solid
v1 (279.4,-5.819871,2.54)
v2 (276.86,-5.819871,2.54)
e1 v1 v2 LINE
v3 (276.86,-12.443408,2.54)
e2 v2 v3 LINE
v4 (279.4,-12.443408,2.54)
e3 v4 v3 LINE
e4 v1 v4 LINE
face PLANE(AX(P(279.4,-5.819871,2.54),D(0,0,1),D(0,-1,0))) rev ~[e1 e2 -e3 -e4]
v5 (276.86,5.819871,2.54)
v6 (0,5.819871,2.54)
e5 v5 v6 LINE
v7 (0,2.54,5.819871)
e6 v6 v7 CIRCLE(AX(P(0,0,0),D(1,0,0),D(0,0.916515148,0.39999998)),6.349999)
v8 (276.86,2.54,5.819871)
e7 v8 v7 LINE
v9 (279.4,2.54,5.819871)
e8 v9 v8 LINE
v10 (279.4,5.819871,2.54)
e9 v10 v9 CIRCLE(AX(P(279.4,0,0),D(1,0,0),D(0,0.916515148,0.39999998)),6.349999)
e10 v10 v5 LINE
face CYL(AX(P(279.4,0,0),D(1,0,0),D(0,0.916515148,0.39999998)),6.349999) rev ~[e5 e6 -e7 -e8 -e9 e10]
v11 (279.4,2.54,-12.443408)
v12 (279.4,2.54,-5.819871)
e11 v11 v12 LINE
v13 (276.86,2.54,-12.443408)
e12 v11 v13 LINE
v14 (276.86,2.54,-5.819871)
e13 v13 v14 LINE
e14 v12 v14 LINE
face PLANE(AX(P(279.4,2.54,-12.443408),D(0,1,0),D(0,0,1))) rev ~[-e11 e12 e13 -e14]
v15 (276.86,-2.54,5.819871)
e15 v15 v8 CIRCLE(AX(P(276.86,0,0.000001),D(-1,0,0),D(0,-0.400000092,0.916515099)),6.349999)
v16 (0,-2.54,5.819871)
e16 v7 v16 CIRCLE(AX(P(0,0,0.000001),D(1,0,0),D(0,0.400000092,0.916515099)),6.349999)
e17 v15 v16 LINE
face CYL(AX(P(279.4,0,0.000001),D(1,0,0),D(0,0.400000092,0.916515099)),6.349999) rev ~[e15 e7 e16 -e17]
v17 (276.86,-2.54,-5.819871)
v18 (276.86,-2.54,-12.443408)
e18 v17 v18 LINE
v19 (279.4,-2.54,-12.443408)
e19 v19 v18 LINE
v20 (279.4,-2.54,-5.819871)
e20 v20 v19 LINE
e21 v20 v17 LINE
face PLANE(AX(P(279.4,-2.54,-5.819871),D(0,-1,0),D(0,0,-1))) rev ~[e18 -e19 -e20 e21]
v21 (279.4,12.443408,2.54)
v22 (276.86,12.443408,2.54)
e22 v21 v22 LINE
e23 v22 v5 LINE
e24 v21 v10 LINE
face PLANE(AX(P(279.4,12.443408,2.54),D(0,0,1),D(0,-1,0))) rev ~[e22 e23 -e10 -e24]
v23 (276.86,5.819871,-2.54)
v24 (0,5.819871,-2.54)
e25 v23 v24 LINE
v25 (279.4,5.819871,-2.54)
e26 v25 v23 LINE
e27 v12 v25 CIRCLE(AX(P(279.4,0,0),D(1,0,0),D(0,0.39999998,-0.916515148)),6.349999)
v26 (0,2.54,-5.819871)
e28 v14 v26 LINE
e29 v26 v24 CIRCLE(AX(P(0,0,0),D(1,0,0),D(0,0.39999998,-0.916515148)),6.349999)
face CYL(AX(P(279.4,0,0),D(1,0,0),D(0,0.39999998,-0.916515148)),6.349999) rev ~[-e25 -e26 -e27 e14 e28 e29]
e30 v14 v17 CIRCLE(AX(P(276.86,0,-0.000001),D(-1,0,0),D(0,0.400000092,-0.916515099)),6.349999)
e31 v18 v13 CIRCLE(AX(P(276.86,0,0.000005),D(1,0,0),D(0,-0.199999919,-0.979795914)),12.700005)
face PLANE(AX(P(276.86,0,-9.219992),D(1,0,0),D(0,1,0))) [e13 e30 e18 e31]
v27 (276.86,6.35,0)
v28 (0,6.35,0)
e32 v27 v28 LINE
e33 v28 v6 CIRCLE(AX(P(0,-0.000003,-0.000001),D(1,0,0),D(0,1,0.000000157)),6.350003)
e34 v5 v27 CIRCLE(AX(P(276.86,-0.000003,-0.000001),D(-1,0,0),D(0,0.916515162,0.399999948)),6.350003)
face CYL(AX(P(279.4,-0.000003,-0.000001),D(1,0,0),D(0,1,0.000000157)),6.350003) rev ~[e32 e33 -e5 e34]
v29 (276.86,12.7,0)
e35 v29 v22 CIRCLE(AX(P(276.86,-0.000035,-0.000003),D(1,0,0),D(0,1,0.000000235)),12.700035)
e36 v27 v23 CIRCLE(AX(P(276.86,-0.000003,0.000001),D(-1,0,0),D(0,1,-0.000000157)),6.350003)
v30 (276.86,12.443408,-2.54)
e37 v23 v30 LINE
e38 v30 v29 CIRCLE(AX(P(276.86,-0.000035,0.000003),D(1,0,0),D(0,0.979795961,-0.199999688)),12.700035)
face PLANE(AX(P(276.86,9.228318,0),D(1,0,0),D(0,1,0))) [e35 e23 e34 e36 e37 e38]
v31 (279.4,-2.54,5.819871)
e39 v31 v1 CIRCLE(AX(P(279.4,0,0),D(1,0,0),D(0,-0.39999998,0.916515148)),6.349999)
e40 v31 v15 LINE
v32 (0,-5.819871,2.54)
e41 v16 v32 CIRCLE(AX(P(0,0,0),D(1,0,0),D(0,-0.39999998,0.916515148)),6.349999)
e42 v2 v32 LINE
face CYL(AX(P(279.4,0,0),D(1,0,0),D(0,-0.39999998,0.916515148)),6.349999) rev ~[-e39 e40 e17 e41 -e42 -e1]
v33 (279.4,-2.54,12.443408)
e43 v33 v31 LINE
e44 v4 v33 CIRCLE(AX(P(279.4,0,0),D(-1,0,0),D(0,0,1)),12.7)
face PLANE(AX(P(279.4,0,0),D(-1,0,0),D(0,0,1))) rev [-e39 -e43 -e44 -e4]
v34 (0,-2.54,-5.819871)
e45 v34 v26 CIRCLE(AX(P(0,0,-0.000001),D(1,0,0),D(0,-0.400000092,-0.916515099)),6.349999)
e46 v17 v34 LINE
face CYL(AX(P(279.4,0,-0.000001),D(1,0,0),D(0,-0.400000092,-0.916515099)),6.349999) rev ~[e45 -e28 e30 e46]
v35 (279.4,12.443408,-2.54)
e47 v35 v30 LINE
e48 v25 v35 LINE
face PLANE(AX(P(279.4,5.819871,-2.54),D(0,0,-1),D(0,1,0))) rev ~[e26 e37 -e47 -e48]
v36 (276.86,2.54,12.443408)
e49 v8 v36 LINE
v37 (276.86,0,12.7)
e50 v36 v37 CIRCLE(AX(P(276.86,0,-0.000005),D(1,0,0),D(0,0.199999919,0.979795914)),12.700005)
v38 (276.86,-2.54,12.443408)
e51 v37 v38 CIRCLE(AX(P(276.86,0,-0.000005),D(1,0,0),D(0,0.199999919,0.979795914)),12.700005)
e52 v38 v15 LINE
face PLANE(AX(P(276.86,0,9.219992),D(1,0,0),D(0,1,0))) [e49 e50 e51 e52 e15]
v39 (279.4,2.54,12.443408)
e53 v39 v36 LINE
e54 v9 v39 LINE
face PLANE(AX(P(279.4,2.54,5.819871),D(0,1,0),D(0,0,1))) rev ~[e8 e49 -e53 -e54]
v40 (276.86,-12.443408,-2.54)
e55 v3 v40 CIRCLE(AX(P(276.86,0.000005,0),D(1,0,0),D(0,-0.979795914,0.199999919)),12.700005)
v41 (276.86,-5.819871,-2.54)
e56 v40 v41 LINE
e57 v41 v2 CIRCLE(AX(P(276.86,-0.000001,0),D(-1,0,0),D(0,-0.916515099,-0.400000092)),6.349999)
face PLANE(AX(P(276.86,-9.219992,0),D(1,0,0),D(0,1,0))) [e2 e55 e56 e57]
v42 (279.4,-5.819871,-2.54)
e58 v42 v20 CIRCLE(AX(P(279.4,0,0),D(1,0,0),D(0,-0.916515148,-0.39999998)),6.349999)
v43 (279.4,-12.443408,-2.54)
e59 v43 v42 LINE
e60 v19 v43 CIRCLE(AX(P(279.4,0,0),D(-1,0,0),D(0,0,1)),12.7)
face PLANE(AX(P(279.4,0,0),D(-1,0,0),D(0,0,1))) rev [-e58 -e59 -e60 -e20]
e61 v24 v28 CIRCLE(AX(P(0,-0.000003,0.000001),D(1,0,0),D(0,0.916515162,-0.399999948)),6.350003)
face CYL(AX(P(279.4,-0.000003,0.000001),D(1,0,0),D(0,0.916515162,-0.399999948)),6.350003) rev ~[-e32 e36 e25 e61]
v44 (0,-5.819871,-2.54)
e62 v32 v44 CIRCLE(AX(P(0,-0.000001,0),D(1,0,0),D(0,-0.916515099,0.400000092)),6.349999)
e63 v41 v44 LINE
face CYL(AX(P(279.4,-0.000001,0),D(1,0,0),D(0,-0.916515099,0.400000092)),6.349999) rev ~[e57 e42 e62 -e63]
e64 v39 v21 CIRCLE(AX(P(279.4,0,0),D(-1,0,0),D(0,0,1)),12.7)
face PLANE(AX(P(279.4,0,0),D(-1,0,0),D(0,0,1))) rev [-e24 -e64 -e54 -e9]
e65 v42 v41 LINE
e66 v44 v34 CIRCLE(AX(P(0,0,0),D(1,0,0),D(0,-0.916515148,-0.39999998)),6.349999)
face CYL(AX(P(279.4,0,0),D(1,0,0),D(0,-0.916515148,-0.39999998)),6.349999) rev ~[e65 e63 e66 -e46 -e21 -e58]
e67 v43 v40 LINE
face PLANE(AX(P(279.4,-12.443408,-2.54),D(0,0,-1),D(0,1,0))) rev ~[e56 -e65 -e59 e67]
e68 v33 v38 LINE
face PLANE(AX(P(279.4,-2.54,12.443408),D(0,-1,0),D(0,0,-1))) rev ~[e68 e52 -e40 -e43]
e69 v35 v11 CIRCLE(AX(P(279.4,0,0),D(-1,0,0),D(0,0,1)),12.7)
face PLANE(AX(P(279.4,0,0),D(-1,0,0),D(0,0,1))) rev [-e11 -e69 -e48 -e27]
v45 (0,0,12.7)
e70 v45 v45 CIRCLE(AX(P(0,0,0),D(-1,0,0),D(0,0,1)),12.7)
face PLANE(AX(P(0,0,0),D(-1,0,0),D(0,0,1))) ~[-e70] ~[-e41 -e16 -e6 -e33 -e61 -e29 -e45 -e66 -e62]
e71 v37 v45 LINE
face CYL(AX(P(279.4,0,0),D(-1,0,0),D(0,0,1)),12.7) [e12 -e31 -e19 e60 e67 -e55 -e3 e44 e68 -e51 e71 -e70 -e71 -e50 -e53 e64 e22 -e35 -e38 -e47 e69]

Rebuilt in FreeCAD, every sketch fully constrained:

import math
import FreeCAD as App
import Part
import Sketcher
from FreeCAD import Vector
Q = App.Units.Quantity


def add_polygon(sketch, points):
    """Adds a closed chain of lines whose ends are joined by coincident constraints."""
    first, n = sketch.GeometryCount, len(points)
    for a, b in zip(points, points[1:] + points[:1]):
        sketch.addGeometry(Part.LineSegment(App.Vector(*a, 0), App.Vector(*b, 0)), False)
    for i in range(n):
        sketch.addConstraint(Sketcher.Constraint("Coincident", first + i, 2, first + (i + 1) % n, 1))

doc = App.newDocument("Part")
body = doc.addObject("PartDesign::Body", "Body")

# Sketch on XZ plane
sketch1 = body.newObject("Sketcher::SketchObject", "Sketch")
sketch1.AttachmentSupport = (doc.getObject("XZ_Plane"), [""])
sketch1.MapMode = "FlatFace"
add_polygon(sketch1, [(0, 12.7), (0, 0), (279.4, 0), (279.4, 12.7)])  # lines 0-3
sketch1.addConstraint(Sketcher.Constraint("Vertical", 0))
sketch1.addConstraint(Sketcher.Constraint("Horizontal", 1))
sketch1.addConstraint(Sketcher.Constraint("Vertical", 2))
sketch1.addConstraint(Sketcher.Constraint("Horizontal", 3))
sketch1.addConstraint(Sketcher.Constraint("Coincident", 0, 2, -1, 1))
sketch1.addConstraint(Sketcher.Constraint("DistanceX", 1, 1, 1, 2, Q("11 in")))
sketch1.addConstraint(Sketcher.Constraint("DistanceY", 0, 2, 0, 1, Q("0.5 in")))
revolution = body.newObject("PartDesign::Revolution", "Revolution")
revolution.Profile = sketch1
revolution.ReferenceAxis = (sketch1, ["H_Axis"])
revolution.Angle = 360

# Sketch on YZ plane
sketch2 = body.newObject("Sketcher::SketchObject", "Sketch001")
sketch2.AttachmentSupport = (doc.getObject("YZ_Plane"), [""])
sketch2.MapMode = "FlatFace"
sketch2.AttachmentOffset = App.Placement(Vector(0, 0, 11 * 25.4), App.Rotation())
sketch2.addGeometry(Part.LineSegment(Vector(2.54, 5.819871, 0), Vector(2.54, 12.443408, 0)), False)
sketch2.addGeometry(Part.ArcOfCircle(Part.Circle(Vector(0, -0.000005, 0), Vector(0, 0, 1), 12.700005), math.radians(78.463046), math.radians(101.536954)), False)
sketch2.addGeometry(Part.LineSegment(Vector(-2.54, 12.443408, 0), Vector(-2.54, 5.819871, 0)), False)
sketch2.addGeometry(Part.ArcOfCircle(Part.Circle(Vector(0, 0.000001, 0), Vector(0, 0, 1), 6.349999), math.radians(66.421816), math.radians(113.578184)), False)
sketch2.addGeometry(Part.LineSegment(Vector(-5.819871, 2.54, 0), Vector(-12.443408, 2.54, 0)), False)
sketch2.addGeometry(Part.ArcOfCircle(Part.Circle(Vector(0.000005, 0, 0), Vector(0, 0, 1), 12.700005), math.radians(168.463046), math.radians(191.536954)), False)
sketch2.addGeometry(Part.LineSegment(Vector(-12.443408, -2.54, 0), Vector(-5.819871, -2.54, 0)), False)
sketch2.addGeometry(Part.ArcOfCircle(Part.Circle(Vector(-0.000001, 0, 0), Vector(0, 0, 1), 6.349999), math.radians(156.421816), math.radians(203.578184)), False)
sketch2.addGeometry(Part.ArcOfCircle(Part.Circle(Vector(-0.000035, 0.000003, 0), Vector(0, 0, 1), 12.700035), math.radians(-11.536941), math.radians(-0.000013)), False)
sketch2.addGeometry(Part.ArcOfCircle(Part.Circle(Vector(-0.000035, -0.000003, 0), Vector(0, 0, 1), 12.700035), math.radians(0.000013), math.radians(11.536941)), False)
sketch2.addGeometry(Part.LineSegment(Vector(12.443408, 2.54, 0), Vector(5.819871, 2.54, 0)), False)
sketch2.addGeometry(Part.ArcOfCircle(Part.Circle(Vector(-0.000003, -0.000001, 0), Vector(0, 0, 1), 6.350003), math.radians(0.000009), math.radians(23.578175)), False)
sketch2.addGeometry(Part.ArcOfCircle(Part.Circle(Vector(-0.000003, 0.000001, 0), Vector(0, 0, 1), 6.350003), math.radians(-23.578175), math.radians(-0.000009)), False)
sketch2.addGeometry(Part.LineSegment(Vector(5.819871, -2.54, 0), Vector(12.443408, -2.54, 0)), False)
sketch2.addGeometry(Part.ArcOfCircle(Part.Circle(Vector(0, 0.000005, 0), Vector(0, 0, 1), 12.700005), math.radians(-101.536954), math.radians(-78.463046)), False)
sketch2.addGeometry(Part.LineSegment(Vector(2.54, -12.443408, 0), Vector(2.54, -5.819871, 0)), False)
sketch2.addGeometry(Part.ArcOfCircle(Part.Circle(Vector(0, -0.000001, 0), Vector(0, 0, 1), 6.349999), math.radians(-113.578184), math.radians(-66.421816)), False)
sketch2.addGeometry(Part.LineSegment(Vector(-2.54, -5.819871, 0), Vector(-2.54, -12.443408, 0)), False)
sketch2.addConstraint(Sketcher.Constraint("Coincident", 0, 2, 1, 1))
sketch2.addConstraint(Sketcher.Constraint("Coincident", 1, 2, 2, 1))
sketch2.addConstraint(Sketcher.Constraint("Coincident", 2, 2, 3, 2))
sketch2.addConstraint(Sketcher.Constraint("Coincident", 3, 1, 0, 1))
sketch2.addConstraint(Sketcher.Constraint("Coincident", 4, 2, 5, 1))
sketch2.addConstraint(Sketcher.Constraint("Coincident", 5, 2, 6, 1))
sketch2.addConstraint(Sketcher.Constraint("Coincident", 6, 2, 7, 2))
sketch2.addConstraint(Sketcher.Constraint("Coincident", 7, 1, 4, 1))
sketch2.addConstraint(Sketcher.Constraint("Coincident", 8, 2, 9, 1))
sketch2.addConstraint(Sketcher.Constraint("Coincident", 9, 2, 10, 1))
sketch2.addConstraint(Sketcher.Constraint("Coincident", 10, 2, 11, 2))
sketch2.addConstraint(Sketcher.Constraint("Coincident", 11, 1, 12, 2))
sketch2.addConstraint(Sketcher.Constraint("Coincident", 12, 1, 13, 1))
sketch2.addConstraint(Sketcher.Constraint("Coincident", 13, 2, 8, 1))
sketch2.addConstraint(Sketcher.Constraint("Coincident", 14, 2, 15, 1))
sketch2.addConstraint(Sketcher.Constraint("Coincident", 15, 2, 16, 2))
sketch2.addConstraint(Sketcher.Constraint("Coincident", 16, 1, 17, 1))
sketch2.addConstraint(Sketcher.Constraint("Coincident", 17, 2, 14, 1))
sketch2.addConstraint(Sketcher.Constraint("Vertical", 0))
sketch2.addConstraint(Sketcher.Constraint("Vertical", 2))
sketch2.addConstraint(Sketcher.Constraint("Horizontal", 4))
sketch2.addConstraint(Sketcher.Constraint("Horizontal", 6))
sketch2.addConstraint(Sketcher.Constraint("Horizontal", 10))
sketch2.addConstraint(Sketcher.Constraint("Horizontal", 13))
sketch2.addConstraint(Sketcher.Constraint("Vertical", 15))
sketch2.addConstraint(Sketcher.Constraint("Vertical", 17))
sketch2.addConstraint(Sketcher.Constraint("Coincident", 1, 3, -1, 1))
sketch2.addConstraint(Sketcher.Constraint("Coincident", 3, 3, -1, 1))
sketch2.addConstraint(Sketcher.Constraint("Coincident", 5, 3, -1, 1))
sketch2.addConstraint(Sketcher.Constraint("Coincident", 7, 3, -1, 1))
sketch2.addConstraint(Sketcher.Constraint("Coincident", 11, 3, -1, 1))
sketch2.addConstraint(Sketcher.Constraint("Coincident", 12, 3, -1, 1))
sketch2.addConstraint(Sketcher.Constraint("Coincident", 14, 3, -1, 1))
sketch2.addConstraint(Sketcher.Constraint("Coincident", 16, 3, -1, 1))
sketch2.addConstraint(Sketcher.Constraint("Coincident", 9, 3, 8, 3))
sketch2.addConstraint(Sketcher.Constraint("PointOnObject", 8, 2, -1))
sketch2.addConstraint(Sketcher.Constraint("PointOnObject", 11, 1, -1))
sketch2.addConstraint(Sketcher.Constraint("Radius", 3, Q("0.2499999 in")))
sketch2.addConstraint(Sketcher.Constraint("Radius", 7, Q("0.2499999 in")))
sketch2.addConstraint(Sketcher.Constraint("Radius", 11, Q("0.2500001 in")))
sketch2.addConstraint(Sketcher.Constraint("Radius", 16, Q("0.2499999 in")))
sketch2.addConstraint(Sketcher.Constraint("DistanceX", -1, 1, 0, 2, Q("0.1 in")))
sketch2.addConstraint(Sketcher.Constraint("DistanceX", 1, 2, -1, 1, Q("0.1 in")))
sketch2.addConstraint(Sketcher.Constraint("DistanceY", -1, 1, 4, 2, Q("0.1 in")))
sketch2.addConstraint(Sketcher.Constraint("DistanceY", 5, 2, -1, 1, Q("0.1 in")))
sketch2.addConstraint(Sketcher.Constraint("DistanceX", -1, 1, 8, 2, Q("0.5 in")))
sketch2.addConstraint(Sketcher.Constraint("DistanceY", -1, 1, 9, 2, Q("0.1 in")))
sketch2.addConstraint(Sketcher.Constraint("DistanceY", 12, 1, -1, 1, Q("0.1 in")))
sketch2.addConstraint(Sketcher.Constraint("DistanceX", -1, 1, 14, 2, Q("0.1 in")))
sketch2.addConstraint(Sketcher.Constraint("DistanceX", 16, 1, -1, 1, Q("0.1 in")))
sketch2.addConstraint(Sketcher.Constraint("DistanceY", 8, 3, 4, 2, Q("0.0999999 in")))
sketch2.addConstraint(Sketcher.Constraint("Radius", 1, Q("12.700005 mm")))
sketch2.addConstraint(Sketcher.Constraint("Radius", 5, Q("12.700005 mm")))
sketch2.addConstraint(Sketcher.Constraint("Radius", 8, Q("12.700035 mm")))
sketch2.addConstraint(Sketcher.Constraint("Radius", 14, Q("12.700005 mm")))
pocket1 = body.newObject("PartDesign::Pocket", "Pocket")
pocket1.Profile = sketch2
pocket1.Length = Q("0.1 in")

# Sketch on YZ plane
sketch3 = body.newObject("Sketcher::SketchObject", "Sketch002")
sketch3.AttachmentSupport = (doc.getObject("YZ_Plane"), [""])
sketch3.MapMode = "FlatFace"
sketch3.AttachmentOffset = App.Placement(Vector(0, 0, 11 * 25.4), App.Rotation())
sketch3.addGeometry(Part.ArcOfCircle(Part.Circle(Vector(-0.000003, -0.000001, 0), Vector(0, 0, 1), 6.350003), math.radians(0.000009), math.radians(23.578175)), False)
sketch3.addGeometry(Part.ArcOfCircle(Part.Circle(Vector(0, 0, 0), Vector(0, 0, 1), 6.349999), math.radians(23.578177), math.radians(66.421823)), False)
sketch3.addGeometry(Part.ArcOfCircle(Part.Circle(Vector(0, 0.000001, 0), Vector(0, 0, 1), 6.349999), math.radians(66.421816), math.radians(113.578184)), False)
sketch3.addGeometry(Part.ArcOfCircle(Part.Circle(Vector(0, 0, 0), Vector(0, 0, 1), 6.349999), math.radians(113.578177), math.radians(156.421823)), False)
sketch3.addGeometry(Part.ArcOfCircle(Part.Circle(Vector(-0.000001, 0, 0), Vector(0, 0, 1), 6.349999), math.radians(156.421816), math.radians(203.578184)), False)
sketch3.addGeometry(Part.ArcOfCircle(Part.Circle(Vector(0, 0, 0), Vector(0, 0, 1), 6.349999), math.radians(-156.421823), math.radians(-113.578177)), False)
sketch3.addGeometry(Part.ArcOfCircle(Part.Circle(Vector(0, -0.000001, 0), Vector(0, 0, 1), 6.349999), math.radians(-113.578184), math.radians(-66.421816)), False)
sketch3.addGeometry(Part.ArcOfCircle(Part.Circle(Vector(0, 0, 0), Vector(0, 0, 1), 6.349999), math.radians(-66.421823), math.radians(-23.578177)), False)
sketch3.addGeometry(Part.ArcOfCircle(Part.Circle(Vector(-0.000003, 0.000001, 0), Vector(0, 0, 1), 6.350003), math.radians(-23.578175), math.radians(-0.000009)), False)
sketch3.addConstraint(Sketcher.Constraint("Tangent", 0, 2, 1, 1))
sketch3.addConstraint(Sketcher.Constraint("Tangent", 1, 2, 2, 1))
sketch3.addConstraint(Sketcher.Constraint("Tangent", 2, 2, 3, 1))
sketch3.addConstraint(Sketcher.Constraint("Tangent", 3, 2, 4, 1))
sketch3.addConstraint(Sketcher.Constraint("Tangent", 4, 2, 5, 1))
sketch3.addConstraint(Sketcher.Constraint("Tangent", 5, 2, 6, 1))
sketch3.addConstraint(Sketcher.Constraint("Tangent", 6, 2, 7, 1))
sketch3.addConstraint(Sketcher.Constraint("Tangent", 7, 2, 8, 1))
sketch3.addConstraint(Sketcher.Constraint("Tangent", 8, 2, 0, 1))
sketch3.addConstraint(Sketcher.Constraint("Coincident", 0, 3, -1, 1))
sketch3.addConstraint(Sketcher.Constraint("Coincident", 2, 3, -1, 1))
sketch3.addConstraint(Sketcher.Constraint("Coincident", 4, 3, -1, 1))
sketch3.addConstraint(Sketcher.Constraint("Coincident", 6, 3, -1, 1))
sketch3.addConstraint(Sketcher.Constraint("PointOnObject", 8, 2, -1))
sketch3.addConstraint(Sketcher.Constraint("Horizontal", 1, 2, 2, 2))
sketch3.addConstraint(Sketcher.Constraint("Horizontal", 0, 2, 3, 2))
sketch3.addConstraint(Sketcher.Constraint("Horizontal", 5, 2, 6, 2))
sketch3.addConstraint(Sketcher.Constraint("Horizontal", 4, 2, 7, 2))
sketch3.addConstraint(Sketcher.Constraint("Vertical", 3, 2, 4, 2))
sketch3.addConstraint(Sketcher.Constraint("Vertical", 2, 2, 5, 2))
sketch3.addConstraint(Sketcher.Constraint("Radius", 0, Q("0.2500001 in")))
sketch3.addConstraint(Sketcher.Constraint("DistanceY", -1, 1, 0, 2, Q("0.1 in")))
sketch3.addConstraint(Sketcher.Constraint("DistanceX", -1, 1, 1, 2, Q("0.1 in")))
pocket2 = body.newObject("PartDesign::Pocket", "Pocket001")
pocket2.Profile = sketch3
pocket2.Type = "ThroughAll"

doc.recompute()
